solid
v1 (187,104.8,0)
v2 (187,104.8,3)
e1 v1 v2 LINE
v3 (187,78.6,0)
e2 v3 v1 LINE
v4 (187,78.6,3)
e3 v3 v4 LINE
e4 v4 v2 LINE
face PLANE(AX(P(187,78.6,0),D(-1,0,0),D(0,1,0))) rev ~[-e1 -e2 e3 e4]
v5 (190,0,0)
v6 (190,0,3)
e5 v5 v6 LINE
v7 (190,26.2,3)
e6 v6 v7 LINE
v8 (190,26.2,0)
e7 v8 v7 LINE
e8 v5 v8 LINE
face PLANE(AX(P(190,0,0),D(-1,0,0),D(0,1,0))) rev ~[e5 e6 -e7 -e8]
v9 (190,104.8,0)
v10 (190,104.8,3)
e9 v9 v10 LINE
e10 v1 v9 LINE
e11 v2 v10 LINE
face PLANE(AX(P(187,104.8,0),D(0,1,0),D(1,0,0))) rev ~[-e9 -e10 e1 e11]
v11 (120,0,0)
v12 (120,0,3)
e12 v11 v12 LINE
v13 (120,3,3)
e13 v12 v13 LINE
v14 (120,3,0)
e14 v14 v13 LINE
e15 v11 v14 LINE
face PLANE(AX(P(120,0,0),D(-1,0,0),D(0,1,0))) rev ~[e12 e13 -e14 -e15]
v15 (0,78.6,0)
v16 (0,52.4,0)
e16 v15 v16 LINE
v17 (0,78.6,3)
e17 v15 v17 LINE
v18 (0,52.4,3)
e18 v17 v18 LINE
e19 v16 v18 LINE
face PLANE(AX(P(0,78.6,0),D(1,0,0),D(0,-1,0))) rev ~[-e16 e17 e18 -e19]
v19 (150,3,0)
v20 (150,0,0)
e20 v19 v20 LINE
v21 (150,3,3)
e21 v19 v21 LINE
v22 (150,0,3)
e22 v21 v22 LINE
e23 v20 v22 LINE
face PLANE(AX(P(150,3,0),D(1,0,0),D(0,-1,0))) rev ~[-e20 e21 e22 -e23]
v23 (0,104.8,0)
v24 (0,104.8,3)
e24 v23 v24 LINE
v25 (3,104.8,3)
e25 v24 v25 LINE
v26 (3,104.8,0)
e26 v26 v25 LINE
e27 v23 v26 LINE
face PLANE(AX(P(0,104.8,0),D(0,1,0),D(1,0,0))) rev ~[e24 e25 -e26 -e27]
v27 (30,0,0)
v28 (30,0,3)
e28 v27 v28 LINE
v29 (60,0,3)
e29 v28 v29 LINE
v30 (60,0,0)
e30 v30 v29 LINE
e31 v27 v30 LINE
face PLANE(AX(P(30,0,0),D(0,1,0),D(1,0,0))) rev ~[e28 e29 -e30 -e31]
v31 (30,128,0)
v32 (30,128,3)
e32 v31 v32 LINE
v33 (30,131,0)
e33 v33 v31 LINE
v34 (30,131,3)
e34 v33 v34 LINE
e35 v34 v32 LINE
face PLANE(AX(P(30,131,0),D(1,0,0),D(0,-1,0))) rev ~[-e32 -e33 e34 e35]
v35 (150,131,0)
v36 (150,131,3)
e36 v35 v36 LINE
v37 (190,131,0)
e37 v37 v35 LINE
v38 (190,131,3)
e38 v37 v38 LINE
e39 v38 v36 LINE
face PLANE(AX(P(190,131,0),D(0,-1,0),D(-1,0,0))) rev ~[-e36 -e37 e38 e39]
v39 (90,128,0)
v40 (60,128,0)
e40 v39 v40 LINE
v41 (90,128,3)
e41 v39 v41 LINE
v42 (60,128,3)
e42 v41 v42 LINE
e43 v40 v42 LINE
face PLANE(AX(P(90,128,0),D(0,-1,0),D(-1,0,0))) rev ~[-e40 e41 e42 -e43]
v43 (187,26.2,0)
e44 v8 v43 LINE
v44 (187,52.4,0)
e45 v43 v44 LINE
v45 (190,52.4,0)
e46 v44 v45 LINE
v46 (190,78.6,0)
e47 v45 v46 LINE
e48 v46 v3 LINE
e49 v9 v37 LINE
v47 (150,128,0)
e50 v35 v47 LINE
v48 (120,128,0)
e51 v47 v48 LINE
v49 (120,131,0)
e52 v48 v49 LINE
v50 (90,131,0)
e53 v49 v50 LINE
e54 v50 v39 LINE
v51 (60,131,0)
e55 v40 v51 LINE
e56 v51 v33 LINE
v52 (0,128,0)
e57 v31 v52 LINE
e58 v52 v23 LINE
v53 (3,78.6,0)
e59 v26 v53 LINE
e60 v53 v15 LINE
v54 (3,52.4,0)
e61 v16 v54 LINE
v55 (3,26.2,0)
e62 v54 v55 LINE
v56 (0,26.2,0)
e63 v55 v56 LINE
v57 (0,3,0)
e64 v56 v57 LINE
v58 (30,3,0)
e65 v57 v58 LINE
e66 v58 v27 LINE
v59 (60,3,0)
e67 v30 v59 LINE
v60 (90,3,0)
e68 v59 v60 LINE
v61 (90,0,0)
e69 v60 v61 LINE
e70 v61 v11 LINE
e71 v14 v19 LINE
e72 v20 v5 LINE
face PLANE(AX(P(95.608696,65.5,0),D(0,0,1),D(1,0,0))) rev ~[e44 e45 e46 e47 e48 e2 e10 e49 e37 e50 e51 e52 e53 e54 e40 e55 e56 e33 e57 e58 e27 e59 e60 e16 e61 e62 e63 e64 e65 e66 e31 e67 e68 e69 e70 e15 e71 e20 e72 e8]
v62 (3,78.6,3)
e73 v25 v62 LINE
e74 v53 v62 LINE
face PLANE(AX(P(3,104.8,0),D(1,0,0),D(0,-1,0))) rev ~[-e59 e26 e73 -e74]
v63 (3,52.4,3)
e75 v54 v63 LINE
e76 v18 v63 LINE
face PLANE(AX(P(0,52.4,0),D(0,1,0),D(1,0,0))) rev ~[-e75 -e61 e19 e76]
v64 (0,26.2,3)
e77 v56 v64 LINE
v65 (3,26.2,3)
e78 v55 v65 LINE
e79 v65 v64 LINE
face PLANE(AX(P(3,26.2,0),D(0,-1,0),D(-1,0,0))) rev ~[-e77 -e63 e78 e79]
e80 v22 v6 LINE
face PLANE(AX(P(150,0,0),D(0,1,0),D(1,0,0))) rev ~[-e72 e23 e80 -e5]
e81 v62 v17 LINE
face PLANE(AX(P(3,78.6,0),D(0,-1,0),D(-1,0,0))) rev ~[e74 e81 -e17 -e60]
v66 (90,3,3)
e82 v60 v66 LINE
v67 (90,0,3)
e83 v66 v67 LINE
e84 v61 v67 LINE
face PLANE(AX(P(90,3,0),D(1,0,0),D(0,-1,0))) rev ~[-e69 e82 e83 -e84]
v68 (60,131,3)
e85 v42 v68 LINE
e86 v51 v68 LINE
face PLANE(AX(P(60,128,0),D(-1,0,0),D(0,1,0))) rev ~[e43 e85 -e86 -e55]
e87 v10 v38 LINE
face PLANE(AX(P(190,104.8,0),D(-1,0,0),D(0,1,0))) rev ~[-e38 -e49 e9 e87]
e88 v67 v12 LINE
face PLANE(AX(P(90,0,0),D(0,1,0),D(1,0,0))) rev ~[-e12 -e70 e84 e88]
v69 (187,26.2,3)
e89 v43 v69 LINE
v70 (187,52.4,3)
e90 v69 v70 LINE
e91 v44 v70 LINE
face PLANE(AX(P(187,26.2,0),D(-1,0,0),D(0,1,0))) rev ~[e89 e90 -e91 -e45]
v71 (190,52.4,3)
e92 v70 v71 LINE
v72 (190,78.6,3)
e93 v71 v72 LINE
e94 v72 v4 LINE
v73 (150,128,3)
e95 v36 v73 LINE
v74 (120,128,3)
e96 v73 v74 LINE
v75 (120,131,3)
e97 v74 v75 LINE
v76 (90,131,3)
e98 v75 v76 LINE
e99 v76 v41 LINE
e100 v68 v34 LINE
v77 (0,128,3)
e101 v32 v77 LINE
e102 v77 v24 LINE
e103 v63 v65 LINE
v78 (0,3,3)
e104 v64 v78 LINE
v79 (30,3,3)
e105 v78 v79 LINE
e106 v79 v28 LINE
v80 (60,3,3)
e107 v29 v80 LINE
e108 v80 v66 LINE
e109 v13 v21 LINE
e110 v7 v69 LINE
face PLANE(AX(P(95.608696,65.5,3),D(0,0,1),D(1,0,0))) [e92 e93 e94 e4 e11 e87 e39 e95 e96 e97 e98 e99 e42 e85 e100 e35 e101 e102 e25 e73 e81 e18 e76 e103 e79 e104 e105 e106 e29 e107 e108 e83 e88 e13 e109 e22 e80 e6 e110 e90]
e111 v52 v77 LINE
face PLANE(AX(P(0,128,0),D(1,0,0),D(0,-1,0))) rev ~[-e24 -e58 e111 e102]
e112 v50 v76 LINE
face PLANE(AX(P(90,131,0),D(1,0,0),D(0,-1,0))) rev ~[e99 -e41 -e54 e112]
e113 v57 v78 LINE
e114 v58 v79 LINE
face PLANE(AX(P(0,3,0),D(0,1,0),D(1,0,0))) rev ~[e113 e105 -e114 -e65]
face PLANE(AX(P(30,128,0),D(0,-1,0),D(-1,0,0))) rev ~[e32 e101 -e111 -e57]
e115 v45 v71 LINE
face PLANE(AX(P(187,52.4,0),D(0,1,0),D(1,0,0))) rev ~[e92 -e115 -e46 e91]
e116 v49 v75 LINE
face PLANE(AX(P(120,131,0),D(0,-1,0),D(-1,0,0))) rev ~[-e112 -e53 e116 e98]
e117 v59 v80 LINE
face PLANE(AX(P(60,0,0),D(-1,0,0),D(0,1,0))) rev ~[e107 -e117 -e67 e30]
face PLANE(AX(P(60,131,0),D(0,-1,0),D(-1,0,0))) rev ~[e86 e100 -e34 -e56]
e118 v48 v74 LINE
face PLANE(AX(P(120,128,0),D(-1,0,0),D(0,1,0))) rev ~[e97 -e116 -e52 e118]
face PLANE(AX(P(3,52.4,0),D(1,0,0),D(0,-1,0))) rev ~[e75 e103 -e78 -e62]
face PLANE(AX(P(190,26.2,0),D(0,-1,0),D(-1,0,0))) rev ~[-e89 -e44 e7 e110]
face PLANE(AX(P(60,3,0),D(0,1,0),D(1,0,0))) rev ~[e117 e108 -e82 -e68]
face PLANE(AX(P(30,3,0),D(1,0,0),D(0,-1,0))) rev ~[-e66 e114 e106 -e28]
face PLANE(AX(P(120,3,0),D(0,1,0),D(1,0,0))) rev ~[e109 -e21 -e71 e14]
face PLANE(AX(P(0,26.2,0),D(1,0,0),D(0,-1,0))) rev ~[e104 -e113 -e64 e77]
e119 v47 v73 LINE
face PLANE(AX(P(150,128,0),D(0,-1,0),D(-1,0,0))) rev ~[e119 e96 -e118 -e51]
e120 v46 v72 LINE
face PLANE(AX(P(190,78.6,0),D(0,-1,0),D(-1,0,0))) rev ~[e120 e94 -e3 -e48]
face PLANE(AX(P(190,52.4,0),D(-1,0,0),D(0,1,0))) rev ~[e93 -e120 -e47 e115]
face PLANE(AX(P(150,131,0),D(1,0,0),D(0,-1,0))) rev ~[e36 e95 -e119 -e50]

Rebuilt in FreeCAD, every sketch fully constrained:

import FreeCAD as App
import Part
import Sketcher
Q = App.Units.Quantity


def add_polygon(sketch, points):
    """Adds a closed chain of lines whose ends are joined by coincident constraints."""
    first, n = sketch.GeometryCount, len(points)
    for a, b in zip(points, points[1:] + points[:1]):
        sketch.addGeometry(Part.LineSegment(App.Vector(*a, 0), App.Vector(*b, 0)), False)
    for i in range(n):
        sketch.addConstraint(Sketcher.Constraint("Coincident", first + i, 2, first + (i + 1) % n, 1))

doc = App.newDocument("Part")
body = doc.addObject("PartDesign::Body", "Body")

sketch1 = body.newObject("Sketcher::SketchObject", "Sketch")
sketch1.AttachmentSupport = (doc.getObject("XY_Plane"), [""])
sketch1.MapMode = "FlatFace"
add_polygon(sketch1, [(60, 128), (60, 131), (30, 131), (30, 128), (0, 128), (0, 104.8), (3, 104.8), (3, 78.6), (0, 78.6), (0, 52.4), (3, 52.4), (3, 26.2), (0, 26.2), (0, 3), (30, 3), (30, 0), (60, 0), (60, 3), (90, 3), (90, 0), (120, 0), (120, 3), (150, 3), (150, 0), (190, 0), (190, 26.2), (187, 26.2), (187, 52.4), (190, 52.4), (190, 78.6), (187, 78.6), (187, 104.8), (190, 104.8), (190, 131), (150, 131), (150, 128), (120, 128), (120, 131), (90, 131), (90, 128)])
sketch1.addConstraint([
    Sketcher.Constraint("Vertical", 0),
    Sketcher.Constraint("Horizontal", 1),
    Sketcher.Constraint("Vertical", 2),
    Sketcher.Constraint("Horizontal", 3),
    Sketcher.Constraint("Vertical", 4),
    Sketcher.Constraint("Horizontal", 5),
    Sketcher.Constraint("Vertical", 6),
    Sketcher.Constraint("Horizontal", 7),
    Sketcher.Constraint("Vertical", 8),
    Sketcher.Constraint("Horizontal", 9),
    Sketcher.Constraint("Vertical", 10),
    Sketcher.Constraint("Horizontal", 11),
    Sketcher.Constraint("Vertical", 12),
    Sketcher.Constraint("Horizontal", 13),
    Sketcher.Constraint("Vertical", 14),
    Sketcher.Constraint("Horizontal", 15),
    Sketcher.Constraint("Vertical", 16),
    Sketcher.Constraint("Horizontal", 17),
    Sketcher.Constraint("Vertical", 18),
    Sketcher.Constraint("Horizontal", 19),
    Sketcher.Constraint("Vertical", 20),
    Sketcher.Constraint("Horizontal", 21),
    Sketcher.Constraint("Vertical", 22),
    Sketcher.Constraint("Horizontal", 23),
    Sketcher.Constraint("Vertical", 24),
    Sketcher.Constraint("Horizontal", 25),
    Sketcher.Constraint("Vertical", 26),
    Sketcher.Constraint("Horizontal", 27),
    Sketcher.Constraint("Vertical", 28),
    Sketcher.Constraint("Horizontal", 29),
    Sketcher.Constraint("Vertical", 30),
    Sketcher.Constraint("Horizontal", 31),
    Sketcher.Constraint("Vertical", 32),
    Sketcher.Constraint("Horizontal", 33),
    Sketcher.Constraint("Vertical", 34),
    Sketcher.Constraint("Horizontal", 35),
    Sketcher.Constraint("Vertical", 36),
    Sketcher.Constraint("Horizontal", 37),
    Sketcher.Constraint("Vertical", 38),
    Sketcher.Constraint("Horizontal", 39),
    Sketcher.Constraint("PointOnObject", 3, 2, -2),
    Sketcher.Constraint("PointOnObject", 7, 2, -2),
    Sketcher.Constraint("PointOnObject", 11, 2, -2),
    Sketcher.Constraint("PointOnObject", 14, 2, -1),
    Sketcher.Constraint("PointOnObject", 18, 2, -1),
    Sketcher.Constraint("PointOnObject", 22, 2, -1),
    Sketcher.Constraint("Horizontal", 13, 2, 16, 2),
    Sketcher.Constraint("Horizontal", 17, 2, 20, 2),
    Sketcher.Constraint("Horizontal", 11, 2, 24, 2),
    Sketcher.Constraint("Horizontal", 9, 2, 26, 2),
    Sketcher.Constraint("Horizontal", 7, 2, 28, 2),
    Sketcher.Constraint("Horizontal", 5, 2, 30, 2),
    Sketcher.Constraint("Horizontal", 1, 2, 32, 2),
    Sketcher.Constraint("Horizontal", 3, 2, 34, 2),
    Sketcher.Constraint("Horizontal", 33, 2, 36, 2),
    Sketcher.Constraint("Horizontal", 35, 2, 38, 2),
    Sketcher.Constraint("Vertical", 6, 2, 9, 2),
    Sketcher.Constraint("Vertical", 2, 2, 13, 2),
    Sketcher.Constraint("Vertical", 0, 2, 15, 2),
    Sketcher.Constraint("Vertical", 24, 2, 27, 2),
    Sketcher.Constraint("Vertical", 26, 2, 29, 2),
    Sketcher.Constraint("Vertical", 28, 2, 31, 2),
    Sketcher.Constraint("Vertical", 22, 2, 33, 2),
    Sketcher.Constraint("Vertical", 20, 2, 35, 2),
    Sketcher.Constraint("Vertical", 18, 2, 37, 2),
    Sketcher.Constraint("Equal", 1, 3),
    Sketcher.Constraint("Equal", 15, 17),
    Sketcher.Constraint("Equal", 17, 19),
    Sketcher.Constraint("Equal", 19, 21),
    Sketcher.Constraint("Equal", 11, 25),
    Sketcher.Constraint("Equal", 31, 0),
    Sketcher.Constraint("Equal", 6, 8),
    Sketcher.Constraint("Equal", 8, 10),
    Sketcher.Constraint("Equal", 4, 12),
    Sketcher.Constraint("Equal", 2, 14),
    Sketcher.Constraint("Equal", 10, 24),
    Sketcher.Constraint("DistanceX", 1, 2, 1, 1, Q("30 mm")),
    Sketcher.Constraint("DistanceX", 5, 1, 5, 2, Q("3 mm")),
    Sketcher.Constraint("DistanceX", 23, 1, 23, 2, Q("40 mm")),
    Sketcher.Constraint("DistanceY", 4, 2, 4, 1, Q("23.2 mm")),
])
pad1 = body.newObject("PartDesign::Pad", "Pad")
pad1.Profile = sketch1
pad1.Length = 3

doc.recompute()
